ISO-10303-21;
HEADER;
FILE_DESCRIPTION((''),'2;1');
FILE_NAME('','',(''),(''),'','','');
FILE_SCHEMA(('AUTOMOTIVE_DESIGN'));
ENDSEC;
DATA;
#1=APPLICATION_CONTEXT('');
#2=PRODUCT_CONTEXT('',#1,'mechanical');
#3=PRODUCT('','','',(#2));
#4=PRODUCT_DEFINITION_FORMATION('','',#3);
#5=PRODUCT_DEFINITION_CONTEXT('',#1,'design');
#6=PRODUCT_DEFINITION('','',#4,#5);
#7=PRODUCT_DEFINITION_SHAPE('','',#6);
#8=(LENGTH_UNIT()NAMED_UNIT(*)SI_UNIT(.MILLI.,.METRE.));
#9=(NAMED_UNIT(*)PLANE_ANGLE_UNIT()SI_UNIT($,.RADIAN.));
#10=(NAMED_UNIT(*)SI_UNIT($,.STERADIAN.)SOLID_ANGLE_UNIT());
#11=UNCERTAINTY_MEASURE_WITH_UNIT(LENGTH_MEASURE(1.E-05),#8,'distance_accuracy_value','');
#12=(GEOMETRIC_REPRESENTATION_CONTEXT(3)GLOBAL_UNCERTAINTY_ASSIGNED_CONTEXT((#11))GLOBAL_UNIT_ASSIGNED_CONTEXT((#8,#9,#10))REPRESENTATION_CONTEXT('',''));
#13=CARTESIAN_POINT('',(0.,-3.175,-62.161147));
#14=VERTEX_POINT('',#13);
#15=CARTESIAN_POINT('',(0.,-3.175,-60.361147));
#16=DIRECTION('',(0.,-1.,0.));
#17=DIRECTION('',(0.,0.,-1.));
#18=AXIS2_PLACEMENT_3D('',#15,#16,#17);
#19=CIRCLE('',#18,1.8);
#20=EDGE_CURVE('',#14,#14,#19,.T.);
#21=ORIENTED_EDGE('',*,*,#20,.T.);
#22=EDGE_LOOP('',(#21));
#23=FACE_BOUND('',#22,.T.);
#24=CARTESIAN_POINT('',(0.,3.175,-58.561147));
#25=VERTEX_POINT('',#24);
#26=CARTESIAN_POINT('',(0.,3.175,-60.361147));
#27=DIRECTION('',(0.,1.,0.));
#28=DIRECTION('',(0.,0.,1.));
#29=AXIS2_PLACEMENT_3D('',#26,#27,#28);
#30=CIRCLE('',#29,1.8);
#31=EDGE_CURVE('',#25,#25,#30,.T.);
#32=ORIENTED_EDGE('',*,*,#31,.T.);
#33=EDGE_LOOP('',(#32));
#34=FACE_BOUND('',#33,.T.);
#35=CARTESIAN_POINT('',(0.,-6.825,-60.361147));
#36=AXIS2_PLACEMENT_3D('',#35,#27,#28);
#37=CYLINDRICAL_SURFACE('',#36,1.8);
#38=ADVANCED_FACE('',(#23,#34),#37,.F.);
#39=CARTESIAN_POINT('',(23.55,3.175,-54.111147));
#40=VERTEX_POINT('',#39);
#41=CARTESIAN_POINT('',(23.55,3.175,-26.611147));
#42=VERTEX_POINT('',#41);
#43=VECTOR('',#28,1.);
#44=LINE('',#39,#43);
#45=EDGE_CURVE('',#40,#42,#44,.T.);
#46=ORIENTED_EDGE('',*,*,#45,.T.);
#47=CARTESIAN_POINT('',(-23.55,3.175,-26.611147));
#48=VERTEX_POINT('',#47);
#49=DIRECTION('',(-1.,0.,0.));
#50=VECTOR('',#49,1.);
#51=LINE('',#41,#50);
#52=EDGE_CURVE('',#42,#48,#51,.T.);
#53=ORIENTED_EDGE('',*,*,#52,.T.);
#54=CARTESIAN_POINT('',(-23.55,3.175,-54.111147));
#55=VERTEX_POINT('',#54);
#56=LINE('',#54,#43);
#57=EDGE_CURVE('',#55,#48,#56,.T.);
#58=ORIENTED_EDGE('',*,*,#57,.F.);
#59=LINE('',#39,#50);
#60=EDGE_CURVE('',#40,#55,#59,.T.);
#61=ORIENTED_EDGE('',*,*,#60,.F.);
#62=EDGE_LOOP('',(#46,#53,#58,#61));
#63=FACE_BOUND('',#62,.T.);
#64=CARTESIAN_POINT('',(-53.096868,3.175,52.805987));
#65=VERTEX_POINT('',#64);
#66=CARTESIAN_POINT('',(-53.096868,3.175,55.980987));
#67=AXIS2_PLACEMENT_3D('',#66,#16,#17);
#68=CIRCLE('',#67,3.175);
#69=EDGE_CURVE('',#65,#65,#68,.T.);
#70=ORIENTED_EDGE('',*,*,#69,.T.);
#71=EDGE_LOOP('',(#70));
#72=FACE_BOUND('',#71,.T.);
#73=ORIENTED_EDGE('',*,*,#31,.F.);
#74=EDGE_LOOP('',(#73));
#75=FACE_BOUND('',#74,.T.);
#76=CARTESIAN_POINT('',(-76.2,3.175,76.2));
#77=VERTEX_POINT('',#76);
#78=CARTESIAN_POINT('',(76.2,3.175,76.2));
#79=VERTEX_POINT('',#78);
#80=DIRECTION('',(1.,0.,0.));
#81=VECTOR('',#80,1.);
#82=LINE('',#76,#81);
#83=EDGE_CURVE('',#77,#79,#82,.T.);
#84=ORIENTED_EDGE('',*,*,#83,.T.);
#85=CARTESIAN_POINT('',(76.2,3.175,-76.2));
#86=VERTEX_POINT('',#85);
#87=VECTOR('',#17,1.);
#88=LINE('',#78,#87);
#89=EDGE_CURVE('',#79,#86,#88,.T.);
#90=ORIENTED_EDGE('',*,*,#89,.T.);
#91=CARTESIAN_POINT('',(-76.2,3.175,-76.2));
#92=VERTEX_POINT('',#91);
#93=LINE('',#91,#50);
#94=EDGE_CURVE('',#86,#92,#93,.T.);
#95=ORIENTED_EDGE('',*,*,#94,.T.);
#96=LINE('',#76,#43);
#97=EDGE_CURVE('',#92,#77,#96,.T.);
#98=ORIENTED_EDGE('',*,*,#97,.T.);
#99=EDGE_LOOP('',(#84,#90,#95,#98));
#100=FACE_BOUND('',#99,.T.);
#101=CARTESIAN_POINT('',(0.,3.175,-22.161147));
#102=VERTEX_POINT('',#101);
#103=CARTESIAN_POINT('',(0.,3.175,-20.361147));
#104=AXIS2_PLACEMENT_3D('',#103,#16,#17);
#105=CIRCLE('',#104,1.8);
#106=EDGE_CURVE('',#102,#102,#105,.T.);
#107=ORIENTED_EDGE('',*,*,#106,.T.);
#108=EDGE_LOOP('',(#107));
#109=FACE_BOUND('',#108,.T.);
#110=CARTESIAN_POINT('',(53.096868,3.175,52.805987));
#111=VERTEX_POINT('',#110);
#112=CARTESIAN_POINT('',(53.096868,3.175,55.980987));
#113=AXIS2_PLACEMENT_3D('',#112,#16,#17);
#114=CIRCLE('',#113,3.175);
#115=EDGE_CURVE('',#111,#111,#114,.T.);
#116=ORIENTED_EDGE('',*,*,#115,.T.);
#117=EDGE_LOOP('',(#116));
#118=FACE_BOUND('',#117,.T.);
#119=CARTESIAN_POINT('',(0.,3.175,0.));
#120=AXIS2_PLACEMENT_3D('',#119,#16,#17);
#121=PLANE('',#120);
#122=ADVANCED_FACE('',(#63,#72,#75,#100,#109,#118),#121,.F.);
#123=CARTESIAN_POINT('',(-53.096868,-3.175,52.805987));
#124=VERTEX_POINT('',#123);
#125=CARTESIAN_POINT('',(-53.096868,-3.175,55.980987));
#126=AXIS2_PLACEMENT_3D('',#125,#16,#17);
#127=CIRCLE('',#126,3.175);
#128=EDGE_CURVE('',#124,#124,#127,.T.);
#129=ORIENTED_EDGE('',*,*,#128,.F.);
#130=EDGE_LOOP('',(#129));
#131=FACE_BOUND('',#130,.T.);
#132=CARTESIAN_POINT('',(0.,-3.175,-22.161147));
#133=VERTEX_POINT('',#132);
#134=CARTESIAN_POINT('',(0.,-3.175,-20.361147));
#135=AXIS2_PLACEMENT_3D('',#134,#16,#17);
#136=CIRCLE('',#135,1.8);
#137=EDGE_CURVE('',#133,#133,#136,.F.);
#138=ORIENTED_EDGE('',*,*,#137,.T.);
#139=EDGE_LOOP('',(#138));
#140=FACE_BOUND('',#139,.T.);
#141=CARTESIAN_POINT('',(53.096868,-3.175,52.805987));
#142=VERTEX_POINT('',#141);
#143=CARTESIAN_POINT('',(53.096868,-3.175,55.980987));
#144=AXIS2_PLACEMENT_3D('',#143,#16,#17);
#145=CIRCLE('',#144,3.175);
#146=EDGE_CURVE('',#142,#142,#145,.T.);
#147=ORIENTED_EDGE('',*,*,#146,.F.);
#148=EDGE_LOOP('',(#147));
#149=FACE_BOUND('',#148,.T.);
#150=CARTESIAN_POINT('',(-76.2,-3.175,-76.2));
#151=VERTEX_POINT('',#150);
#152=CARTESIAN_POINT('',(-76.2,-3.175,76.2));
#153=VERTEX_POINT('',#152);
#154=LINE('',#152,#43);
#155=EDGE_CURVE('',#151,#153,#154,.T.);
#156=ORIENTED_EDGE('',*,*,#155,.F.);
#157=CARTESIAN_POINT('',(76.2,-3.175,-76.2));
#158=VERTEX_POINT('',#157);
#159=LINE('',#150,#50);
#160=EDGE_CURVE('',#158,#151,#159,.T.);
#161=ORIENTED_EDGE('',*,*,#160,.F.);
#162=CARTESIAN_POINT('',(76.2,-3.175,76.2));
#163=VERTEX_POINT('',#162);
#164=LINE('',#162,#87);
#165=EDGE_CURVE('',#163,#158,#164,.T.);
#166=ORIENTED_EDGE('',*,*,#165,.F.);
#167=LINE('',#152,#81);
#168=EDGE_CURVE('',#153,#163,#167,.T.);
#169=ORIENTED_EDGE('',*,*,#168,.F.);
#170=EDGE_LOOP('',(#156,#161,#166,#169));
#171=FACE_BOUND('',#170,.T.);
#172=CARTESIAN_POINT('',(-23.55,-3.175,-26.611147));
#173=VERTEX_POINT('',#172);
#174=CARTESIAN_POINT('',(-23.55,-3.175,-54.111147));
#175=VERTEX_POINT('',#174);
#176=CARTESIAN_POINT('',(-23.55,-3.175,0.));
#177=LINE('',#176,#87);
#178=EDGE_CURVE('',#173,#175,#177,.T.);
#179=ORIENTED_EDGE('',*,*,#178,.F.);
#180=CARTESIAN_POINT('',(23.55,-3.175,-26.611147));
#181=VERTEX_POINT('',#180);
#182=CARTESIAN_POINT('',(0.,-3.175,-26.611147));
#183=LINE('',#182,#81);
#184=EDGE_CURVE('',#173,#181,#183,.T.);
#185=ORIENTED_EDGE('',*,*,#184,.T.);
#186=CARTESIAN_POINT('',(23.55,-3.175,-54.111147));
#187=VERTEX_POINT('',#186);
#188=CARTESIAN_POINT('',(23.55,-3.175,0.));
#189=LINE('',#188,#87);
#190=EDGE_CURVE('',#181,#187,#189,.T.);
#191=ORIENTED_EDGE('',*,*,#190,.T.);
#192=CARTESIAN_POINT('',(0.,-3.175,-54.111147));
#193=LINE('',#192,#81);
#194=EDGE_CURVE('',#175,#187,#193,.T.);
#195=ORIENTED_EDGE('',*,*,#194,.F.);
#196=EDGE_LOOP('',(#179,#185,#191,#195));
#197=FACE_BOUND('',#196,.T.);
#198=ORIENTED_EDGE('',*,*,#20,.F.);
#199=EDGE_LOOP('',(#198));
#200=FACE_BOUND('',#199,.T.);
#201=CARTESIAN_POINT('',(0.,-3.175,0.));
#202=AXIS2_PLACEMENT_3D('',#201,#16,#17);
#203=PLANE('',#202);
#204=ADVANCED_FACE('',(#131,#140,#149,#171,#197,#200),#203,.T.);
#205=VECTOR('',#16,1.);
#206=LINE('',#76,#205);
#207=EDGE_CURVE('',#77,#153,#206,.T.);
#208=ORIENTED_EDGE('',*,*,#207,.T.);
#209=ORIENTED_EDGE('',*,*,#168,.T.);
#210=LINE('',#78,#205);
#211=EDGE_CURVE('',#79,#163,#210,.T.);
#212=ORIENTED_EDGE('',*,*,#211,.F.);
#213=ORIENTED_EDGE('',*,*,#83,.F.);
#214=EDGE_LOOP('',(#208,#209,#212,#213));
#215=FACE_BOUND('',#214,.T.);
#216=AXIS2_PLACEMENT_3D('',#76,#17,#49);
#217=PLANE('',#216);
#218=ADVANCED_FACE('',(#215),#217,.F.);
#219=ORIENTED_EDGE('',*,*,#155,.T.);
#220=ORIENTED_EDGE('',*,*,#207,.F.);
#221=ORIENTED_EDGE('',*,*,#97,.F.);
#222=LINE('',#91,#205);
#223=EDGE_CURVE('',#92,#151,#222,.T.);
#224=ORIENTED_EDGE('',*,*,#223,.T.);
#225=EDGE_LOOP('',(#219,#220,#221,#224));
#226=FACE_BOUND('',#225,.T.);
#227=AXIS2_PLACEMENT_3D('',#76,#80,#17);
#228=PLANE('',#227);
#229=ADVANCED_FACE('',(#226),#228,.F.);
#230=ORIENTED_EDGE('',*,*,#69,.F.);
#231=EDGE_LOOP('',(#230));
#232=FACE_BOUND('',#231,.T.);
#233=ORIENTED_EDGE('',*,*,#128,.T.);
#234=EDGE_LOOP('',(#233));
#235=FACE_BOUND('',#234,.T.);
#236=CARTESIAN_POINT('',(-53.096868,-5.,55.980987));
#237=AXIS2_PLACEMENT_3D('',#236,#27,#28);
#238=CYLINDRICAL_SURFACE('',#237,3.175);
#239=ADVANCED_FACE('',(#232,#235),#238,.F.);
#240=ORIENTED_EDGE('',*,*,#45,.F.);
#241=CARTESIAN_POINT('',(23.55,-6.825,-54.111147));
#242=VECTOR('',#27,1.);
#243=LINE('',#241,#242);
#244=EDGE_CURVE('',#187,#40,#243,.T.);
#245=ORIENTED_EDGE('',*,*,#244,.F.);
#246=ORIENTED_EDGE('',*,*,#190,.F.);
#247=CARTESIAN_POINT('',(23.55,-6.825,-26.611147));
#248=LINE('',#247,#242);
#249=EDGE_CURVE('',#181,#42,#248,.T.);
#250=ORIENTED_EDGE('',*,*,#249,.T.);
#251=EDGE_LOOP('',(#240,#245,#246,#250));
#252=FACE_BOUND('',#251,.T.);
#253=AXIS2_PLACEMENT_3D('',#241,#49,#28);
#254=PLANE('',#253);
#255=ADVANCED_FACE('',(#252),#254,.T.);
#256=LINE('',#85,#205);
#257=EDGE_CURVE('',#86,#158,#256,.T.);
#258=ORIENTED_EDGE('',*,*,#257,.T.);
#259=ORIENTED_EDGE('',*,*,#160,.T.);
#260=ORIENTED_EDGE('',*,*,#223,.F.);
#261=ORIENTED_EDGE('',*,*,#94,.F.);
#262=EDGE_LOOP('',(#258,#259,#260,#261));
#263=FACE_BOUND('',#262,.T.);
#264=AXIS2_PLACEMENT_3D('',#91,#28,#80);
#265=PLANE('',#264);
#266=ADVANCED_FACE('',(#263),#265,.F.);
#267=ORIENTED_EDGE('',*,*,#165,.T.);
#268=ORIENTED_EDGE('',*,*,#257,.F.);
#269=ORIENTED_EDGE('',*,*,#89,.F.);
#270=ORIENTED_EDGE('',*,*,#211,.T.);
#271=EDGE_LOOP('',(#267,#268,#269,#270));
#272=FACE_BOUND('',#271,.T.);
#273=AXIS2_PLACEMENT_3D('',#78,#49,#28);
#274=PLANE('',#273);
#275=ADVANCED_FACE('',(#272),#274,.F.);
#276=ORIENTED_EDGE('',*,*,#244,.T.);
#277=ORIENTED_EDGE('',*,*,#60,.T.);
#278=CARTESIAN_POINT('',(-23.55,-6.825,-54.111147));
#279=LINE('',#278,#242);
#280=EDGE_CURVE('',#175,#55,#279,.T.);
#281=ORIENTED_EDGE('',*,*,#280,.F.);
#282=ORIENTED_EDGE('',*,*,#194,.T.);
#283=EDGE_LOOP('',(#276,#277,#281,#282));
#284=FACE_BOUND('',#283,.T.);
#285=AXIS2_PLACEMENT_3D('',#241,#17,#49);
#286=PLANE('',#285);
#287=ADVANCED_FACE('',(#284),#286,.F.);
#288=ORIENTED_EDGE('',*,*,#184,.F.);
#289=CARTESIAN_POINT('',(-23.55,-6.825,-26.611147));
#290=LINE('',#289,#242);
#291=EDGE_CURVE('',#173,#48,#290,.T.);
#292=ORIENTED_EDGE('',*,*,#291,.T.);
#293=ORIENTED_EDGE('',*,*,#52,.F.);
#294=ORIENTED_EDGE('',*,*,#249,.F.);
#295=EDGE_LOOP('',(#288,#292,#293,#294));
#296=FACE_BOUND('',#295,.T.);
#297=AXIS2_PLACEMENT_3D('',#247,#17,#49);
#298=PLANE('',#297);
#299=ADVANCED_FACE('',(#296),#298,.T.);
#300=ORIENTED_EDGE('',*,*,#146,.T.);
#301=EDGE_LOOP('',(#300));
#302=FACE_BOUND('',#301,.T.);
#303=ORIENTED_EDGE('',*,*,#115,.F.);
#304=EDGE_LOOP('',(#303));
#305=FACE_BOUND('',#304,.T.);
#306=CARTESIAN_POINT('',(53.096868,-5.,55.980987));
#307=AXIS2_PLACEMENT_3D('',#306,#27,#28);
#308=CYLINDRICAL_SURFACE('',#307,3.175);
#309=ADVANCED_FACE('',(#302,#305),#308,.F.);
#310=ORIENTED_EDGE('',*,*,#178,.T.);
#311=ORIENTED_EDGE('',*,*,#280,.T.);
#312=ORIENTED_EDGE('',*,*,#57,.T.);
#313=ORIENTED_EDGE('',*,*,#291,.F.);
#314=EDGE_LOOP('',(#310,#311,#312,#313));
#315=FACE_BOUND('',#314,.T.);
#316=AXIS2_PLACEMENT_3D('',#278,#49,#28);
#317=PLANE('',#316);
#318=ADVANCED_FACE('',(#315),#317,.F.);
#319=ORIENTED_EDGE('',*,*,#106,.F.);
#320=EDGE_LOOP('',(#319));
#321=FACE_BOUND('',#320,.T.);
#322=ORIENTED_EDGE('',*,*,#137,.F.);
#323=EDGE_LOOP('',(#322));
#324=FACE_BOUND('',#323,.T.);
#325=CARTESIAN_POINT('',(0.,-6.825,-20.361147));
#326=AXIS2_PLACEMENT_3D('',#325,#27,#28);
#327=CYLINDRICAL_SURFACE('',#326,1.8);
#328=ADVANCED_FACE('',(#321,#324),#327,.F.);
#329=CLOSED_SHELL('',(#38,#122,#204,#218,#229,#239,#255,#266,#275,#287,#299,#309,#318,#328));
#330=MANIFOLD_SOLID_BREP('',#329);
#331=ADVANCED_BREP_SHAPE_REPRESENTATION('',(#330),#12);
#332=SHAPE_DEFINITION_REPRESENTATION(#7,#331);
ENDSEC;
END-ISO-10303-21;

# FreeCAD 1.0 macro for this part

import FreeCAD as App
import Part
import Sketcher
from FreeCAD import Vector


def add_polygon(sketch, points):
    """Adds a closed chain of lines whose ends are joined by coincident constraints."""
    first, n = sketch.GeometryCount, len(points)
    for a, b in zip(points, points[1:] + points[:1]):
        sketch.addGeometry(Part.LineSegment(App.Vector(*a, 0), App.Vector(*b, 0)), False)
    for i in range(n):
        sketch.addConstraint(Sketcher.Constraint("Coincident", first + i, 2, first + (i + 1) % n, 1))

doc = App.newDocument("Part")
body = doc.addObject("PartDesign::Body", "Body")

sketch1 = doc.addObject("Sketcher::SketchObject", "Sketch")
body.addObject(sketch1)
sketch1.AttachmentSupport = (doc.XZ_Plane, [""])
sketch1.MapMode = "FlatFace"
add_polygon(sketch1, [(-76, -76), (-76, 76), (76, 76), (76, -76)])
sketch1.addConstraint([
    Sketcher.Constraint("Vertical", 0),
    Sketcher.Constraint("Horizontal", 1),
    Sketcher.Constraint("Vertical", 2),
    Sketcher.Constraint("Horizontal", 3),
    Sketcher.Constraint("Symmetric", 0, 2, 2, 2, -1, 1),
    Sketcher.Constraint("Equal", 3, 0),
    Sketcher.Constraint("DistanceX", 1, 1, 1, 2, 152.4),
])
pad1 = doc.addObject("PartDesign::Pad", "Pad")
body.addObject(pad1)
pad1.Profile = sketch1
pad1.Length = 6.35
pad1.Midplane = True

sketch2 = doc.addObject("Sketcher::SketchObject", "Sketch001")
body.addObject(sketch2)
sketch2.AttachmentSupport = (doc.XZ_Plane, [""])
sketch2.MapMode = "FlatFace"
sketch2.AttachmentOffset = App.Placement(Vector(0, 0, -3.175), App.Rotation())
sketch2.addGeometry(Part.Circle(Vector(0, -60.4, 0), Vector(0, 0, 1), 1.8), False)
sketch2.addGeometry(Part.Circle(Vector(0, -20.4, 0), Vector(0, 0, 1), 1.8), False)
add_polygon(sketch2, [(-23.6, -54.1), (-23.6, -26.6), (23.6, -26.6), (23.6, -54.1)])
sketch2.addConstraint([
    Sketcher.Constraint("Vertical", 2),
    Sketcher.Constraint("Horizontal", 3),
    Sketcher.Constraint("Vertical", 4),
    Sketcher.Constraint("Horizontal", 5),
    Sketcher.Constraint("Equal", 0, 1),
    Sketcher.Constraint("PointOnObject", 0, 3, -2),
    Sketcher.Constraint("PointOnObject", 1, 3, -2),
    Sketcher.Constraint("Diameter", 0, 3.6),
    Sketcher.Constraint("DistanceX", 3, 1, 3, 2, 47.1),
    Sketcher.Constraint("DistanceY", 2, 1, 2, 2, 27.5),
    Sketcher.Constraint("DistanceY", 0, 3, 1, 3, 40.0),
    Sketcher.Constraint("DistanceX", 2, 2, -1, 1, 23.55),
    Sketcher.Constraint("DistanceY", 2, 2, 1, 3, 6.25),
    Sketcher.Constraint("DistanceY", 0, 3, -1, 1, 60.361147),
])
pocket1 = doc.addObject("PartDesign::Pocket", "Pocket")
body.addObject(pocket1)
pocket1.Profile = sketch2
pocket1.Length = 10
pocket1.Reversed = True

sketch3 = doc.addObject("Sketcher::SketchObject", "Sketch002")
body.addObject(sketch3)
sketch3.AttachmentSupport = (doc.XZ_Plane, [""])
sketch3.MapMode = "FlatFace"
sketch3.addGeometry([
    Part.Circle(Vector(-53.1, 56, 0), Vector(0, 0, 1), 3.2),
    Part.Circle(Vector(53.1, 56, 0), Vector(0, 0, 1), 3.2),
], False)
sketch3.addConstraint([
    Sketcher.Constraint("Equal", 0, 1),
    Sketcher.Constraint("Symmetric", 0, 3, 1, 3, -2),
    Sketcher.Constraint("Diameter", 0, 6.35),
    Sketcher.Constraint("DistanceX", 0, 3, -1, 1, 53.096868),
    Sketcher.Constraint("DistanceY", -1, 1, 0, 3, 55.980987),
])
pocket2 = doc.addObject("PartDesign::Pocket", "Pocket001")
body.addObject(pocket2)
pocket2.Profile = sketch3
pocket2.Length = 10
pocket2.Midplane = True

doc.recompute()
